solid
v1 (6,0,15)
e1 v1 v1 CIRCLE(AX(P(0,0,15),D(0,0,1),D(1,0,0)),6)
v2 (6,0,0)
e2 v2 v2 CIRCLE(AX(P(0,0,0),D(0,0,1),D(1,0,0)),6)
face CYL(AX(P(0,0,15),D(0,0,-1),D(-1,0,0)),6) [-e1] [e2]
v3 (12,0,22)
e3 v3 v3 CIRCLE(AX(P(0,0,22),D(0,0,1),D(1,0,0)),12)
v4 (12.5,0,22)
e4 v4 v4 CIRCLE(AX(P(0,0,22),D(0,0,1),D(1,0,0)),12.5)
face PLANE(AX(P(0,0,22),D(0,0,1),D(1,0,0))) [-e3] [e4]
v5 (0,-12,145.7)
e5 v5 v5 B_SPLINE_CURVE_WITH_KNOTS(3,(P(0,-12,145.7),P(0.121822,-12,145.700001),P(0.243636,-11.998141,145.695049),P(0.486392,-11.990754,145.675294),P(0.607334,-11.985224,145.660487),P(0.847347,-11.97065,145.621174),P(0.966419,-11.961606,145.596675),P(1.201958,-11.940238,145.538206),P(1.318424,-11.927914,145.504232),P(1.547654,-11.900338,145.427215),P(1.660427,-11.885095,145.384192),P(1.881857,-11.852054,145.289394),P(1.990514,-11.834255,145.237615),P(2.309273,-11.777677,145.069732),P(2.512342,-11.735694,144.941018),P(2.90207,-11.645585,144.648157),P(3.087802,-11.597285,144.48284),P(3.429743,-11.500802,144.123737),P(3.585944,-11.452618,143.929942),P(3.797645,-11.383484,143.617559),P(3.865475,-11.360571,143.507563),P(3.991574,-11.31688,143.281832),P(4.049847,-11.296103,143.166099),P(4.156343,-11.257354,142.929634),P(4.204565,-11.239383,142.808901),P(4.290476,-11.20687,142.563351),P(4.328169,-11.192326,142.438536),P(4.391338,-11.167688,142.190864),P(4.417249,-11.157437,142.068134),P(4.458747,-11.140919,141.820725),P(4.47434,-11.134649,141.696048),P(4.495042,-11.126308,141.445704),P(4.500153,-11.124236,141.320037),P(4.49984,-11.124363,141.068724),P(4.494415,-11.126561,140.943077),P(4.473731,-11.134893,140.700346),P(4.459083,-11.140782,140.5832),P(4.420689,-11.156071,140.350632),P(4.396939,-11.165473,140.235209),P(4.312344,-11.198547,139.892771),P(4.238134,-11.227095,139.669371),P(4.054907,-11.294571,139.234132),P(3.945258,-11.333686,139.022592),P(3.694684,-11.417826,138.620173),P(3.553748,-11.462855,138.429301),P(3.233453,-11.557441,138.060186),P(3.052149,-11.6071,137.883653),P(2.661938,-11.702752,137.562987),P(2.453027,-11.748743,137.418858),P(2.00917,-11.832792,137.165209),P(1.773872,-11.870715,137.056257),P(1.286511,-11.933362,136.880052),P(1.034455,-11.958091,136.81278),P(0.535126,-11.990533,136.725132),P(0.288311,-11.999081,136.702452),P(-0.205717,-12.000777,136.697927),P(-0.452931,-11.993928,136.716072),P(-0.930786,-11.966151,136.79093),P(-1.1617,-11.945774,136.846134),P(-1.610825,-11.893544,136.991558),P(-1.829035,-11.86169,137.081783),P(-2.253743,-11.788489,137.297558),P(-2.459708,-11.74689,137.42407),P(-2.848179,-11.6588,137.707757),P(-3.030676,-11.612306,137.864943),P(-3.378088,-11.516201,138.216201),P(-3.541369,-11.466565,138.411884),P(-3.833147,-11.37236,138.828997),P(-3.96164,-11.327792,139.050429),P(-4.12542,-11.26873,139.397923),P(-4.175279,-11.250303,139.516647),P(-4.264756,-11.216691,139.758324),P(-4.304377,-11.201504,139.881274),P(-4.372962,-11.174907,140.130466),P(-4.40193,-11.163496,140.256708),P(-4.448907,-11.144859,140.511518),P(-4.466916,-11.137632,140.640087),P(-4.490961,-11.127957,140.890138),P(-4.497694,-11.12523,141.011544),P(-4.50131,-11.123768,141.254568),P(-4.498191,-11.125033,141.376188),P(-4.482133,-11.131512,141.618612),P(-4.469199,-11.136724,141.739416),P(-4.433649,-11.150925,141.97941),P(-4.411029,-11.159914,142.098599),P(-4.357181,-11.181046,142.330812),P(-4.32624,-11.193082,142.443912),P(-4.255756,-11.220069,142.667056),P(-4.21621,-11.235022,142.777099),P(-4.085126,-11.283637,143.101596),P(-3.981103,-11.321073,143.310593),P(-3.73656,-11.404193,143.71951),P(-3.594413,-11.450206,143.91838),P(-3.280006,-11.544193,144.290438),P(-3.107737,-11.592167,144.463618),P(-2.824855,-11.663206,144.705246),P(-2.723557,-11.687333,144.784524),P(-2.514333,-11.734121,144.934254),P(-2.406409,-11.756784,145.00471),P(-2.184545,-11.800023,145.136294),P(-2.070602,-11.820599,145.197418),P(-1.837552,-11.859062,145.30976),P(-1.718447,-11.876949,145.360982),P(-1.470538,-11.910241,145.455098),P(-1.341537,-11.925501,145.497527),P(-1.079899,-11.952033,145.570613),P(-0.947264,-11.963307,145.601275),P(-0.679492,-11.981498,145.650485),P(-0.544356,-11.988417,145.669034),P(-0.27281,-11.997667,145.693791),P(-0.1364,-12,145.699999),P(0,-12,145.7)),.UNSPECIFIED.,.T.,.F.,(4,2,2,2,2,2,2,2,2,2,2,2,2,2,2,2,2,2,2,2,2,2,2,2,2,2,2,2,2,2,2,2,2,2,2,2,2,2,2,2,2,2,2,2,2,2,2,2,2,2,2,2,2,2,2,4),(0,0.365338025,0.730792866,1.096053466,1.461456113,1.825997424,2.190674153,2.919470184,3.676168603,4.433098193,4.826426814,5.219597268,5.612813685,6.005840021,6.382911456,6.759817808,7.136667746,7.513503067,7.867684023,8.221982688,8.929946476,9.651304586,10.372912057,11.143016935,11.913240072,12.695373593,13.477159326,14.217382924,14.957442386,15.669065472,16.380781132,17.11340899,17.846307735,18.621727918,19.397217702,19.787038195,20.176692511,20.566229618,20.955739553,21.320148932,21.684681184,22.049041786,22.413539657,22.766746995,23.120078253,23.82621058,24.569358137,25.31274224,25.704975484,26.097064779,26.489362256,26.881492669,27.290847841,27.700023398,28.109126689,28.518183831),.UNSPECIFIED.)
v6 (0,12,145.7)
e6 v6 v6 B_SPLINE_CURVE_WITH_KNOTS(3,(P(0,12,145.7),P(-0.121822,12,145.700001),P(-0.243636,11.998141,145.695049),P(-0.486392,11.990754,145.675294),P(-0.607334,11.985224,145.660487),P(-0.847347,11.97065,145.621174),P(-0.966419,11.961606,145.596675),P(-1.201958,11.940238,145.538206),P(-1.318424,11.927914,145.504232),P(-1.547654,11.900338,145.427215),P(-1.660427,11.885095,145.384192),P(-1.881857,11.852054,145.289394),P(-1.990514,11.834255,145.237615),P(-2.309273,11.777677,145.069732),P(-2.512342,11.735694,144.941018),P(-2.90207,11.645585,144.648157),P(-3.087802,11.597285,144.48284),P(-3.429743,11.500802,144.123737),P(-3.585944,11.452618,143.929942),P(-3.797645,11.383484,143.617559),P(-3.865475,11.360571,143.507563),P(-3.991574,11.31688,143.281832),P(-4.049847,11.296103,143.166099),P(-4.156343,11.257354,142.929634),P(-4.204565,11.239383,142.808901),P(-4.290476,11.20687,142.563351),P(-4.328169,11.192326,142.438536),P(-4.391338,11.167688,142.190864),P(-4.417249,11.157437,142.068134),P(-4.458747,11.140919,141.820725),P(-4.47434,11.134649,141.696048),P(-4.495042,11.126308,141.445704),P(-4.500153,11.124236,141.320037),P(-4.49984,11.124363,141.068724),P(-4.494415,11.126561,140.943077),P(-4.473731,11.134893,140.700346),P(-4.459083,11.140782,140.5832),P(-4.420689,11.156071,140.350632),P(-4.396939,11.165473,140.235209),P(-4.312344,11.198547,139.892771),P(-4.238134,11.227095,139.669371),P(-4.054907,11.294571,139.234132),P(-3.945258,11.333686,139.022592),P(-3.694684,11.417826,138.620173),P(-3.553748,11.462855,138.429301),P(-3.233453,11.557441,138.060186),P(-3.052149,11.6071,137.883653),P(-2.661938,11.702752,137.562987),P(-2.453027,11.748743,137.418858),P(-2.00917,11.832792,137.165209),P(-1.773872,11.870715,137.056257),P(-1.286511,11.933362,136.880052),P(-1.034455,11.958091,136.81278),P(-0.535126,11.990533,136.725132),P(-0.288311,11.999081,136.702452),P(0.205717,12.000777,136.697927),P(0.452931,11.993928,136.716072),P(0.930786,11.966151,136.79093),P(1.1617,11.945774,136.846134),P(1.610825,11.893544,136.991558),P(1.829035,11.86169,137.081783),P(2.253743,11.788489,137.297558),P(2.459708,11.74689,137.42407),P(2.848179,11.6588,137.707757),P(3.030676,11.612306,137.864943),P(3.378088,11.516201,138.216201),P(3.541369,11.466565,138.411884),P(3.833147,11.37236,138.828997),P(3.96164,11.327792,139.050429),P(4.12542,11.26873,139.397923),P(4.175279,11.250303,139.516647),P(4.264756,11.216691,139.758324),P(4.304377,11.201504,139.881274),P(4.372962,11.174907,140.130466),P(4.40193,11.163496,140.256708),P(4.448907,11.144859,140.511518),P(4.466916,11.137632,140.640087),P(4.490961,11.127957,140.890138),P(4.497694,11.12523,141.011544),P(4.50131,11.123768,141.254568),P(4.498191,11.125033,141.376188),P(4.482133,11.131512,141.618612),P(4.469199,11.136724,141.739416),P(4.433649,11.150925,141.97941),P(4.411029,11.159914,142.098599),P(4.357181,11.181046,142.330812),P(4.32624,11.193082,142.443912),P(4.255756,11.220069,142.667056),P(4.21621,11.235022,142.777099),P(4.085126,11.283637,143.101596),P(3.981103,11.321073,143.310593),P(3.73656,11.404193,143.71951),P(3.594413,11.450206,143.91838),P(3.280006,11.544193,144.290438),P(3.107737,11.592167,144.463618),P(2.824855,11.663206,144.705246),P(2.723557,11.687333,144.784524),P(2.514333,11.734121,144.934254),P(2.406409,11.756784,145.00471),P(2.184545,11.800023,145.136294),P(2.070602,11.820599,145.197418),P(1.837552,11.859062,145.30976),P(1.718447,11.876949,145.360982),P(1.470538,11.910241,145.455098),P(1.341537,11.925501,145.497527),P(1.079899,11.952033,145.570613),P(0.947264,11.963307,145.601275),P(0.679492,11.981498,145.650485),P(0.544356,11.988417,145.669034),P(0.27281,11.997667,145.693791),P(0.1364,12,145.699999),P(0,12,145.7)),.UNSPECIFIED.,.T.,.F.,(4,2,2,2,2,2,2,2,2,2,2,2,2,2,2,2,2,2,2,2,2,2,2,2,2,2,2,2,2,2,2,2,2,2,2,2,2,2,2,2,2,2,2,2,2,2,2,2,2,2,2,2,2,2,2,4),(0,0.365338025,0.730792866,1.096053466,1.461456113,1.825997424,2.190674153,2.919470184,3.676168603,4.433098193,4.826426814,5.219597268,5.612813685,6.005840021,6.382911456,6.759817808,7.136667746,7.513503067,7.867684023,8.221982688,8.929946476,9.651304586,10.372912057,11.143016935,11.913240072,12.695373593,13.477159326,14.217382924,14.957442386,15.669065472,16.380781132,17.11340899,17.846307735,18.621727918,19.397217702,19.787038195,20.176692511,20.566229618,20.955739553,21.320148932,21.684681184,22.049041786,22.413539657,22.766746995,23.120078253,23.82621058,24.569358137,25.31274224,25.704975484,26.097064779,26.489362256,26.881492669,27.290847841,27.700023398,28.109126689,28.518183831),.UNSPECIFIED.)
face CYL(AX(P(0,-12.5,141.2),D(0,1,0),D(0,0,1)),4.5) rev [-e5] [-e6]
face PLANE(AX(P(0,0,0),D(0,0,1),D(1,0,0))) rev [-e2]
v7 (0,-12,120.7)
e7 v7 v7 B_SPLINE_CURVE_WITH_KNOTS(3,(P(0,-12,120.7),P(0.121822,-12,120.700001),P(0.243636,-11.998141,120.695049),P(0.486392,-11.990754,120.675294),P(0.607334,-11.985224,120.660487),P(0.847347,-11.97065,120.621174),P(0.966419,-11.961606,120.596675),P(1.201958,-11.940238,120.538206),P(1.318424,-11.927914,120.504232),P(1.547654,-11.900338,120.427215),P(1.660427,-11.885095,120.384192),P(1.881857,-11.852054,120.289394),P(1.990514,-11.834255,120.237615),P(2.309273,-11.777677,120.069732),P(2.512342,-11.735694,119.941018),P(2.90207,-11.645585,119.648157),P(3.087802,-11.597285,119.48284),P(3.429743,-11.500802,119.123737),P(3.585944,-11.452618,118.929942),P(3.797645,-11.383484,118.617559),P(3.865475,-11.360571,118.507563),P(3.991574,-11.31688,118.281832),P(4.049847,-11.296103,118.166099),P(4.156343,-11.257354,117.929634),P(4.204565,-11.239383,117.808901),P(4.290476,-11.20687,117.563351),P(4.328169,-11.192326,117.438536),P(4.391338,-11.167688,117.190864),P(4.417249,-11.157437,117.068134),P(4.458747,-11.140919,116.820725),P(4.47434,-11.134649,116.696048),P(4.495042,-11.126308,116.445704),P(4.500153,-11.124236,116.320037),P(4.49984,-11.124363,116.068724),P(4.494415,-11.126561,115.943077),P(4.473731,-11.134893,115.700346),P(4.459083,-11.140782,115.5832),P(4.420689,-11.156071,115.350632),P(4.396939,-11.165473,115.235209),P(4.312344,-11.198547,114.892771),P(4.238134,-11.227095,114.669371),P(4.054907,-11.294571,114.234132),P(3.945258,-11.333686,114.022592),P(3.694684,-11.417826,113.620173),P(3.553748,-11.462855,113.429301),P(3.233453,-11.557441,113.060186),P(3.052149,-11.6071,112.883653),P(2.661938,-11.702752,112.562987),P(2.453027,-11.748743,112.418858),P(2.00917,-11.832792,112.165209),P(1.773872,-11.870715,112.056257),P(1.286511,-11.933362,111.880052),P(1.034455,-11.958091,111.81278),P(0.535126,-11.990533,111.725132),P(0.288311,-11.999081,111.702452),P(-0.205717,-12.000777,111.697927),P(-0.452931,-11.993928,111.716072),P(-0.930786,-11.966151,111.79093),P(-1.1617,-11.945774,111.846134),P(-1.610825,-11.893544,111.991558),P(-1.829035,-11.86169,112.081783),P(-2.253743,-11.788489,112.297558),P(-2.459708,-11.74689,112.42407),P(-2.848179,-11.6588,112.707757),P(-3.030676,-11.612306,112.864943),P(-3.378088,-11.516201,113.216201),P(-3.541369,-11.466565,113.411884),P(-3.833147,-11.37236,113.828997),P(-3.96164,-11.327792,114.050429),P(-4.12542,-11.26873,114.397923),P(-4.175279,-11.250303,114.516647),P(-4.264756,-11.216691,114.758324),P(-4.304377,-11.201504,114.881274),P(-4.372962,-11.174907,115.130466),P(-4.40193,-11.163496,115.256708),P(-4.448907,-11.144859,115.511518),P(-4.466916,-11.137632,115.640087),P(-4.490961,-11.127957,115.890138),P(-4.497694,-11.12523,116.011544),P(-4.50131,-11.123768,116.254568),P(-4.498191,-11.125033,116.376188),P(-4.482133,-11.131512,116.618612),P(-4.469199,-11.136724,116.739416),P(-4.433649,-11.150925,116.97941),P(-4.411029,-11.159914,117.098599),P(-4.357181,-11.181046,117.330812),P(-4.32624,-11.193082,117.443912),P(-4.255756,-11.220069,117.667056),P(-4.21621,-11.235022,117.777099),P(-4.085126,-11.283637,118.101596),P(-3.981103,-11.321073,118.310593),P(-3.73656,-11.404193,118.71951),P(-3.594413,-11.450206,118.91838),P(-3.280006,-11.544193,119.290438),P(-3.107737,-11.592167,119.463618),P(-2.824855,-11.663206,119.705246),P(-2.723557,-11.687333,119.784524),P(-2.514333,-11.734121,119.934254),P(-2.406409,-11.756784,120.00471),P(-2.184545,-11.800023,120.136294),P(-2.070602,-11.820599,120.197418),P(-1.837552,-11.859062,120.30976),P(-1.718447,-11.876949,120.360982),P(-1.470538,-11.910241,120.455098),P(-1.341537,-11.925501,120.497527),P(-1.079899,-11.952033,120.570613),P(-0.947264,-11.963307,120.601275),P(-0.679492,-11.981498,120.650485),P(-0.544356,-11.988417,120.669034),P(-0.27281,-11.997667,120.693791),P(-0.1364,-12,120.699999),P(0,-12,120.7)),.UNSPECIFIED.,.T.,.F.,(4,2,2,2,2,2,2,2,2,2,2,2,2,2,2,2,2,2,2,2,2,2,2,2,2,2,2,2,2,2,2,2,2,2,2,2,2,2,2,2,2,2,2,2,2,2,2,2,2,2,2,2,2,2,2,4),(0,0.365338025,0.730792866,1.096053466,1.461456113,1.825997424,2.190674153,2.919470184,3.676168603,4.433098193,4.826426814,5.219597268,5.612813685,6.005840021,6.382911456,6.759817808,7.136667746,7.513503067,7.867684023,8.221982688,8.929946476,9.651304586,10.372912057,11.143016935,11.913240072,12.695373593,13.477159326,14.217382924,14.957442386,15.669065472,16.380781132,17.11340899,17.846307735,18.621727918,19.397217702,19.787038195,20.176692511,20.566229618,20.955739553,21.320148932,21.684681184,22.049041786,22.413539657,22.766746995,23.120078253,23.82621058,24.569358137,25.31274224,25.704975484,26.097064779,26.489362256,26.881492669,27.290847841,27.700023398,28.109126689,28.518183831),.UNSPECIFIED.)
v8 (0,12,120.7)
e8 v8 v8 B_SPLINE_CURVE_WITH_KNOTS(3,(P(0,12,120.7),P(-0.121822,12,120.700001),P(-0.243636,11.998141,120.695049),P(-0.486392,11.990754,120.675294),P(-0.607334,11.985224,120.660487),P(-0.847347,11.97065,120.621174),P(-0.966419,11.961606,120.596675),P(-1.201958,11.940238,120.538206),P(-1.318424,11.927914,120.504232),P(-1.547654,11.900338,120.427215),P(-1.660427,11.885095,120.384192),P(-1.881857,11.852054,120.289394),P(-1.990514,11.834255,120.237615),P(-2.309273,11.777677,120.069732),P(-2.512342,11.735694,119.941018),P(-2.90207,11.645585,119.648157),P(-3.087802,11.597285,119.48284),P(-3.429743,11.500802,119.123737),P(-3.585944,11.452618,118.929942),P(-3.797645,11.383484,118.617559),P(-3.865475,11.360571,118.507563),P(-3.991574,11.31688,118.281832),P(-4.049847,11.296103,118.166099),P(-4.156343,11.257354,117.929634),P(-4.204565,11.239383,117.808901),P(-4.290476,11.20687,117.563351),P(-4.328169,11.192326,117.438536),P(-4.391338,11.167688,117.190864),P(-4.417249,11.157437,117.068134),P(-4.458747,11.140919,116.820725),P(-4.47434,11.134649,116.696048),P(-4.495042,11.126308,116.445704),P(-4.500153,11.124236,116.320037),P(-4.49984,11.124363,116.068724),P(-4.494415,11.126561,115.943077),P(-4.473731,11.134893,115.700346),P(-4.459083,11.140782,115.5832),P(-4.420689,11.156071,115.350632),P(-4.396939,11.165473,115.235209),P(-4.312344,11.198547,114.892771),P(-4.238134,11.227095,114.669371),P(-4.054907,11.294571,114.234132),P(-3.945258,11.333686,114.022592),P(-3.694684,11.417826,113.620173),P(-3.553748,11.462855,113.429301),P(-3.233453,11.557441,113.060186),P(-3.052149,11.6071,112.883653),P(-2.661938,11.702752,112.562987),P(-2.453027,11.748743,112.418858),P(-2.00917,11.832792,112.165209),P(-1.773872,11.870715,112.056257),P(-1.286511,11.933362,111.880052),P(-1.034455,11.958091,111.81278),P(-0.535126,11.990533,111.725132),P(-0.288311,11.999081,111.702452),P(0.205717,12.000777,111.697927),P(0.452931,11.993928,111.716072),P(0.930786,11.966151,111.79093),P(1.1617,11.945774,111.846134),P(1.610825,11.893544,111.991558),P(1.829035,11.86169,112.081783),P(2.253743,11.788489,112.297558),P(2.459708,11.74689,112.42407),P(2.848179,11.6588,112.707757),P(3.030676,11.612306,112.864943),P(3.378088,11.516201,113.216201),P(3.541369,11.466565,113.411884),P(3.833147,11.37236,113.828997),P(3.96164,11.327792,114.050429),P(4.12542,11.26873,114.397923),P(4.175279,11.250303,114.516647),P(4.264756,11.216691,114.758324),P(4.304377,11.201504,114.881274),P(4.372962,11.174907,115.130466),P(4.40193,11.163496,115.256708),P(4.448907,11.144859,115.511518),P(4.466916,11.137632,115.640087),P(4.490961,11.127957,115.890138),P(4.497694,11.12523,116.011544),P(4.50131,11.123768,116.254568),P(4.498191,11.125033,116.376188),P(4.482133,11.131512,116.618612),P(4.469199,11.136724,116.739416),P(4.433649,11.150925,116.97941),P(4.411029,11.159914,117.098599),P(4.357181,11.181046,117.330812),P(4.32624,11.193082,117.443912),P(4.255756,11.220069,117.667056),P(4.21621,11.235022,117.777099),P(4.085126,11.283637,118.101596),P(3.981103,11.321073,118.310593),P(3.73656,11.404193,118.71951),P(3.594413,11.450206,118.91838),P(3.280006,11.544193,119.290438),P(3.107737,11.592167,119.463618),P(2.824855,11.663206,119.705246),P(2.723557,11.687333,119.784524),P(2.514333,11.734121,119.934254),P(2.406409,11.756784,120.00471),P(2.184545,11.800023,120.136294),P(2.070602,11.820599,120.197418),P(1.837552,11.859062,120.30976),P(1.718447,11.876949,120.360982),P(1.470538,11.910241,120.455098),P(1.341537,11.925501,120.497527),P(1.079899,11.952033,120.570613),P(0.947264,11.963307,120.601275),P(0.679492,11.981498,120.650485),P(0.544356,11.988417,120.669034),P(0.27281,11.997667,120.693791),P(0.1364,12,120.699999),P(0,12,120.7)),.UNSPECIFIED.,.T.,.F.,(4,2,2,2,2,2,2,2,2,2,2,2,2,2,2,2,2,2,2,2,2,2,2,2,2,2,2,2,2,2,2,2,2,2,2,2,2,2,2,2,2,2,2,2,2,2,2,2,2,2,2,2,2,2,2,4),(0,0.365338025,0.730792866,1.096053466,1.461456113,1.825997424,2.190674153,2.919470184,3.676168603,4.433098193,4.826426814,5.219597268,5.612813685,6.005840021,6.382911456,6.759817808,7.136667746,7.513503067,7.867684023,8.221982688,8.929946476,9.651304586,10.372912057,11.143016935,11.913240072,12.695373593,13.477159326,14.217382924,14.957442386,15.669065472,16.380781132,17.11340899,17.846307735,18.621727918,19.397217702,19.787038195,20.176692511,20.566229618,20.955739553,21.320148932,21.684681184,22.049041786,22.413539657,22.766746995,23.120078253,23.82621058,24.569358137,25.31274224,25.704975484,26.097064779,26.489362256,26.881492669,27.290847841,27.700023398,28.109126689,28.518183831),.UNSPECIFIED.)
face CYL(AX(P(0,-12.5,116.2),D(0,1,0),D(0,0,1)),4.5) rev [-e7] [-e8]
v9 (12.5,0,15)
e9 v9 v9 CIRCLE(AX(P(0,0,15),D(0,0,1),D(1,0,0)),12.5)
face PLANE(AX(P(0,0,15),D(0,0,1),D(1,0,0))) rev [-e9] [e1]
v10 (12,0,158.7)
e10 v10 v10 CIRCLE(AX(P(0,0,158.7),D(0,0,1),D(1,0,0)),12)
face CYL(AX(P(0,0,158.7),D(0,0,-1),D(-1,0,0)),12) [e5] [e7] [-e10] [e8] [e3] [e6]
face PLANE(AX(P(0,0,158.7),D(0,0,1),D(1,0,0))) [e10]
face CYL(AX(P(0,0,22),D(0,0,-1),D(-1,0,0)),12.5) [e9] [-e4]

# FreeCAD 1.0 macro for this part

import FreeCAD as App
import Part
import Sketcher
from FreeCAD import Vector

doc = App.newDocument("Part")
params = doc.addObject("Spreadsheet::Sheet", "Params")
for row, (alias, value) in enumerate([
    ("sketch1_diameter", "12 mm"),
    ("pad1_length", "15 mm"),
    ("sketch2_diameter", "25 mm"),
    ("pad2_length", "7 mm"),
    ("sketch3_diameter", "24 mm"),
    ("pad3_length", "136.7 mm"),
    ("sketch4_diameter", "9 mm"),
    ("pocket1_length", "321.363054 mm"),
    ("linearpattern_pitch", "25 mm"),
], start=1):
    params.set(f"A{row}", alias)
    params.set(f"B{row}", "=" + value)
    params.setAlias(f"B{row}", alias)

body = doc.addObject("PartDesign::Body", "Body")

# Sketch on XY plane
sketch1 = body.newObject("Sketcher::SketchObject", "Sketch")
sketch1.AttachmentSupport = (doc.getObject("XY_Plane"), [""])
sketch1.MapMode = "FlatFace"
sketch1.addGeometry(Part.Circle(Vector(0, 0, 0), Vector(0, 0, 1), 6), False)
sketch1.addConstraint([
    Sketcher.Constraint("Coincident", 0, 3, -1, 1),
    Sketcher.Constraint("Diameter", 0, 12.0),
])
sketch1.setExpression("Constraints[1]", "Params.sketch1_diameter")
pad1 = body.newObject("PartDesign::Pad", "Pad")
pad1.Profile = sketch1
pad1.setExpression("Length", "Params.pad1_length")

# Sketch on XY plane
sketch2 = body.newObject("Sketcher::SketchObject", "Sketch001")
sketch2.AttachmentSupport = (doc.getObject("XY_Plane"), [""])
sketch2.MapMode = "FlatFace"
sketch2.AttachmentOffset = App.Placement(Vector(0, 0, 15), App.Rotation())
sketch2.addGeometry(Part.Circle(Vector(0, 0, 0), Vector(0, 0, 1), 12.5), False)
sketch2.addConstraint([
    Sketcher.Constraint("Coincident", 0, 3, -1, 1),
    Sketcher.Constraint("Diameter", 0, 25.0),
])
sketch2.setExpression("Constraints[1]", "Params.sketch2_diameter")
pad2 = body.newObject("PartDesign::Pad", "Pad001")
pad2.Profile = sketch2
pad2.setExpression("Length", "Params.pad2_length")

# Sketch on XY plane
sketch3 = body.newObject("Sketcher::SketchObject", "Sketch002")
sketch3.AttachmentSupport = (doc.getObject("XY_Plane"), [""])
sketch3.MapMode = "FlatFace"
sketch3.AttachmentOffset = App.Placement(Vector(0, 0, 22), App.Rotation())
sketch3.addGeometry(Part.Circle(Vector(0, 0, 0), Vector(0, 0, 1), 12), False)
sketch3.addConstraint([
    Sketcher.Constraint("Coincident", 0, 3, -1, 1),
    Sketcher.Constraint("Diameter", 0, 24.0),
])
sketch3.setExpression("Constraints[1]", "Params.sketch3_diameter")
pad3 = body.newObject("PartDesign::Pad", "Pad002")
pad3.Profile = sketch3
pad3.setExpression("Length", "Params.pad3_length")

# Sketch on XZ plane
sketch4 = body.newObject("Sketcher::SketchObject", "Sketch003")
sketch4.AttachmentSupport = (doc.getObject("XZ_Plane"), [""])
sketch4.MapMode = "FlatFace"
sketch4.addGeometry(Part.Circle(Vector(0, 141.2, 0), Vector(0, 0, 1), 4.5), False)
sketch4.addConstraint([
    Sketcher.Constraint("PointOnObject", 0, 3, -2),
    Sketcher.Constraint("Diameter", 0, 9.0),
    Sketcher.Constraint("DistanceY", -1, 1, 0, 3, 141.2),
])
sketch4.setExpression("Constraints[1]", "Params.sketch4_diameter")
pocket1 = body.newObject("PartDesign::Pocket", "Pocket")
pocket1.Profile = sketch4
pocket1.setExpression("Length", "Params.pocket1_length")
pocket1.Midplane = True
doc.recompute()

linearpattern = body.newObject("PartDesign::LinearPattern", "LinearPattern")
linearpattern.Originals = [pocket1]
linearpattern.Direction = (doc.getObject("Z_Axis"), [""])
linearpattern.Mode = "offset"
linearpattern.setExpression("Offset", "Params.linearpattern_pitch")
linearpattern.Occurrences = 2
linearpattern.Reversed = True
body.Tip = linearpattern

doc.recompute()
